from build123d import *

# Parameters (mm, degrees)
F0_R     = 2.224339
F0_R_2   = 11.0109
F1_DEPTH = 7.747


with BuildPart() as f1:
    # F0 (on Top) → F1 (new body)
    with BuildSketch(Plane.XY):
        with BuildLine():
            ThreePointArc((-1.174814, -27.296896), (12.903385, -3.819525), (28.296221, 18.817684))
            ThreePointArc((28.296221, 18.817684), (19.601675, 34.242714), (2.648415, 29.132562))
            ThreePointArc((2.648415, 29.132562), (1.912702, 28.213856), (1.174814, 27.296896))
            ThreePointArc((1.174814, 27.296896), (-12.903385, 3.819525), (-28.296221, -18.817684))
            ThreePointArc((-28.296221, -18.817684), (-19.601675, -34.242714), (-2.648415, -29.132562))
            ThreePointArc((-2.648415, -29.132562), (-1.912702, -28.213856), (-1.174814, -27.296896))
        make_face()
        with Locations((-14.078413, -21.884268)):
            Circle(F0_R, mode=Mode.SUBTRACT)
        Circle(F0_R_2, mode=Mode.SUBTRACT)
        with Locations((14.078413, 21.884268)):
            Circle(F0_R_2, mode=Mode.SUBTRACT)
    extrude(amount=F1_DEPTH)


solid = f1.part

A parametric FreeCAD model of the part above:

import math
import FreeCAD as App
import Part
import Sketcher

V = App.Vector
Q = App.Units.Quantity

doc = App.newDocument("Part")
body = doc.addObject("PartDesign::Body", "Body")

sketch1 = doc.addObject("Sketcher::SketchObject", "Sketch")
body.addObject(sketch1)
sketch1.AttachmentSupport = (doc.XY_Plane, [""])
sketch1.MapMode = "FlatFace"
sketch1.addGeometry([
    Part.ArcOfCircle(Part.Circle(V(417.6, -262.5, 0), V(0, 0, 1), 480.3), math.radians(144.15), math.radians(150.68)),
    Part.ArcOfCircle(Part.Circle(V(14.3, 21.1, 0), V(0, 0, 1), 14.2), math.radians(-9), math.radians(145)),
    Part.ArcOfCircle(Part.Circle(V(-385.4, 339.1, 0), V(0, 0, 1), 496.7), math.radians(-38.89), math.radians(-38.62)),
    Part.ArcOfCircle(Part.Circle(V(-417.6, 262.5, 0), V(0, 0, 1), 480.3), math.radians(-35.85), math.radians(-29.32)),
    Part.ArcOfCircle(Part.Circle(V(-14.3, -21.1, 0), V(0, 0, 1), 14.2), math.radians(171), math.radians(325)),
    Part.ArcOfCircle(Part.Circle(V(385.4, -339.1, 0), V(0, 0, 1), 496.7), math.radians(141.11), math.radians(141.38)),
    Part.Circle(V(-14.1, -21.9, 0), V(0, 0, 1), 2.2),
    Part.Circle(V(0, 0, 0), V(0, 0, 1), 11),
    Part.Circle(V(14.1, 21.9, 0), V(0, 0, 1), 11),
], False)
sketch1.addConstraint([
    Sketcher.Constraint("Coincident", 0, 1, 1, 1),
    Sketcher.Constraint("Coincident", 1, 2, 2, 2),
    Sketcher.Constraint("Coincident", 2, 1, 3, 2),
    Sketcher.Constraint("Coincident", 3, 1, 4, 1),
    Sketcher.Constraint("Coincident", 4, 2, 5, 2),
    Sketcher.Constraint("Coincident", 5, 1, 0, 2),
    Sketcher.Constraint("Coincident", 7, 3, -1, 1),
    Sketcher.Constraint("Equal", 0, 3),
    Sketcher.Constraint("Equal", 1, 4),
    Sketcher.Constraint("Equal", 2, 5),
    Sketcher.Constraint("Equal", 7, 8),
    Sketcher.Constraint("Symmetric", 0, 3, 3, 3, -1, 1),
    Sketcher.Constraint("Symmetric", 1, 3, 4, 3, -1, 1),
    Sketcher.Constraint("Symmetric", 2, 3, 5, 3, -1, 1),
    Sketcher.Constraint("Symmetric", 6, 3, 8, 3, -1, 1),
    Sketcher.Constraint("Diameter", 7, Q("0.867 in")),
    Sketcher.Constraint("DistanceX", 1, 2, 8, 3, Q("0.4499999 in")),
    Sketcher.Constraint("Diameter", 6, 4.448678),
    Sketcher.Constraint("Radius", 0, 480.319937),
    Sketcher.Constraint("Radius", 1, 14.165136),
    Sketcher.Constraint("Radius", 2, 496.679502),
    Sketcher.Constraint("DistanceY", -1, 1, 2, 3, 339.1387),
    Sketcher.Constraint("DistanceX", 6, 3, 0, 3, 431.710001),
    Sketcher.Constraint("DistanceX", 2, 1, 1, 2, 1.473601),
    Sketcher.Constraint("DistanceX", -1, 1, 0, 3, 417.631588),
    Sketcher.Constraint("DistanceY", 0, 3, -1, 1, 262.474359),
    Sketcher.Constraint("DistanceY", -1, 1, 1, 3, 21.10059),
    Sketcher.Constraint("DistanceY", 6, 3, 4, 3, 0.783678),
])
pad1 = doc.addObject("PartDesign::Pad", "Pad")
body.addObject(pad1)
pad1.Profile = sketch1
pad1.Length = Q("0.305 in")

doc.recompute()
